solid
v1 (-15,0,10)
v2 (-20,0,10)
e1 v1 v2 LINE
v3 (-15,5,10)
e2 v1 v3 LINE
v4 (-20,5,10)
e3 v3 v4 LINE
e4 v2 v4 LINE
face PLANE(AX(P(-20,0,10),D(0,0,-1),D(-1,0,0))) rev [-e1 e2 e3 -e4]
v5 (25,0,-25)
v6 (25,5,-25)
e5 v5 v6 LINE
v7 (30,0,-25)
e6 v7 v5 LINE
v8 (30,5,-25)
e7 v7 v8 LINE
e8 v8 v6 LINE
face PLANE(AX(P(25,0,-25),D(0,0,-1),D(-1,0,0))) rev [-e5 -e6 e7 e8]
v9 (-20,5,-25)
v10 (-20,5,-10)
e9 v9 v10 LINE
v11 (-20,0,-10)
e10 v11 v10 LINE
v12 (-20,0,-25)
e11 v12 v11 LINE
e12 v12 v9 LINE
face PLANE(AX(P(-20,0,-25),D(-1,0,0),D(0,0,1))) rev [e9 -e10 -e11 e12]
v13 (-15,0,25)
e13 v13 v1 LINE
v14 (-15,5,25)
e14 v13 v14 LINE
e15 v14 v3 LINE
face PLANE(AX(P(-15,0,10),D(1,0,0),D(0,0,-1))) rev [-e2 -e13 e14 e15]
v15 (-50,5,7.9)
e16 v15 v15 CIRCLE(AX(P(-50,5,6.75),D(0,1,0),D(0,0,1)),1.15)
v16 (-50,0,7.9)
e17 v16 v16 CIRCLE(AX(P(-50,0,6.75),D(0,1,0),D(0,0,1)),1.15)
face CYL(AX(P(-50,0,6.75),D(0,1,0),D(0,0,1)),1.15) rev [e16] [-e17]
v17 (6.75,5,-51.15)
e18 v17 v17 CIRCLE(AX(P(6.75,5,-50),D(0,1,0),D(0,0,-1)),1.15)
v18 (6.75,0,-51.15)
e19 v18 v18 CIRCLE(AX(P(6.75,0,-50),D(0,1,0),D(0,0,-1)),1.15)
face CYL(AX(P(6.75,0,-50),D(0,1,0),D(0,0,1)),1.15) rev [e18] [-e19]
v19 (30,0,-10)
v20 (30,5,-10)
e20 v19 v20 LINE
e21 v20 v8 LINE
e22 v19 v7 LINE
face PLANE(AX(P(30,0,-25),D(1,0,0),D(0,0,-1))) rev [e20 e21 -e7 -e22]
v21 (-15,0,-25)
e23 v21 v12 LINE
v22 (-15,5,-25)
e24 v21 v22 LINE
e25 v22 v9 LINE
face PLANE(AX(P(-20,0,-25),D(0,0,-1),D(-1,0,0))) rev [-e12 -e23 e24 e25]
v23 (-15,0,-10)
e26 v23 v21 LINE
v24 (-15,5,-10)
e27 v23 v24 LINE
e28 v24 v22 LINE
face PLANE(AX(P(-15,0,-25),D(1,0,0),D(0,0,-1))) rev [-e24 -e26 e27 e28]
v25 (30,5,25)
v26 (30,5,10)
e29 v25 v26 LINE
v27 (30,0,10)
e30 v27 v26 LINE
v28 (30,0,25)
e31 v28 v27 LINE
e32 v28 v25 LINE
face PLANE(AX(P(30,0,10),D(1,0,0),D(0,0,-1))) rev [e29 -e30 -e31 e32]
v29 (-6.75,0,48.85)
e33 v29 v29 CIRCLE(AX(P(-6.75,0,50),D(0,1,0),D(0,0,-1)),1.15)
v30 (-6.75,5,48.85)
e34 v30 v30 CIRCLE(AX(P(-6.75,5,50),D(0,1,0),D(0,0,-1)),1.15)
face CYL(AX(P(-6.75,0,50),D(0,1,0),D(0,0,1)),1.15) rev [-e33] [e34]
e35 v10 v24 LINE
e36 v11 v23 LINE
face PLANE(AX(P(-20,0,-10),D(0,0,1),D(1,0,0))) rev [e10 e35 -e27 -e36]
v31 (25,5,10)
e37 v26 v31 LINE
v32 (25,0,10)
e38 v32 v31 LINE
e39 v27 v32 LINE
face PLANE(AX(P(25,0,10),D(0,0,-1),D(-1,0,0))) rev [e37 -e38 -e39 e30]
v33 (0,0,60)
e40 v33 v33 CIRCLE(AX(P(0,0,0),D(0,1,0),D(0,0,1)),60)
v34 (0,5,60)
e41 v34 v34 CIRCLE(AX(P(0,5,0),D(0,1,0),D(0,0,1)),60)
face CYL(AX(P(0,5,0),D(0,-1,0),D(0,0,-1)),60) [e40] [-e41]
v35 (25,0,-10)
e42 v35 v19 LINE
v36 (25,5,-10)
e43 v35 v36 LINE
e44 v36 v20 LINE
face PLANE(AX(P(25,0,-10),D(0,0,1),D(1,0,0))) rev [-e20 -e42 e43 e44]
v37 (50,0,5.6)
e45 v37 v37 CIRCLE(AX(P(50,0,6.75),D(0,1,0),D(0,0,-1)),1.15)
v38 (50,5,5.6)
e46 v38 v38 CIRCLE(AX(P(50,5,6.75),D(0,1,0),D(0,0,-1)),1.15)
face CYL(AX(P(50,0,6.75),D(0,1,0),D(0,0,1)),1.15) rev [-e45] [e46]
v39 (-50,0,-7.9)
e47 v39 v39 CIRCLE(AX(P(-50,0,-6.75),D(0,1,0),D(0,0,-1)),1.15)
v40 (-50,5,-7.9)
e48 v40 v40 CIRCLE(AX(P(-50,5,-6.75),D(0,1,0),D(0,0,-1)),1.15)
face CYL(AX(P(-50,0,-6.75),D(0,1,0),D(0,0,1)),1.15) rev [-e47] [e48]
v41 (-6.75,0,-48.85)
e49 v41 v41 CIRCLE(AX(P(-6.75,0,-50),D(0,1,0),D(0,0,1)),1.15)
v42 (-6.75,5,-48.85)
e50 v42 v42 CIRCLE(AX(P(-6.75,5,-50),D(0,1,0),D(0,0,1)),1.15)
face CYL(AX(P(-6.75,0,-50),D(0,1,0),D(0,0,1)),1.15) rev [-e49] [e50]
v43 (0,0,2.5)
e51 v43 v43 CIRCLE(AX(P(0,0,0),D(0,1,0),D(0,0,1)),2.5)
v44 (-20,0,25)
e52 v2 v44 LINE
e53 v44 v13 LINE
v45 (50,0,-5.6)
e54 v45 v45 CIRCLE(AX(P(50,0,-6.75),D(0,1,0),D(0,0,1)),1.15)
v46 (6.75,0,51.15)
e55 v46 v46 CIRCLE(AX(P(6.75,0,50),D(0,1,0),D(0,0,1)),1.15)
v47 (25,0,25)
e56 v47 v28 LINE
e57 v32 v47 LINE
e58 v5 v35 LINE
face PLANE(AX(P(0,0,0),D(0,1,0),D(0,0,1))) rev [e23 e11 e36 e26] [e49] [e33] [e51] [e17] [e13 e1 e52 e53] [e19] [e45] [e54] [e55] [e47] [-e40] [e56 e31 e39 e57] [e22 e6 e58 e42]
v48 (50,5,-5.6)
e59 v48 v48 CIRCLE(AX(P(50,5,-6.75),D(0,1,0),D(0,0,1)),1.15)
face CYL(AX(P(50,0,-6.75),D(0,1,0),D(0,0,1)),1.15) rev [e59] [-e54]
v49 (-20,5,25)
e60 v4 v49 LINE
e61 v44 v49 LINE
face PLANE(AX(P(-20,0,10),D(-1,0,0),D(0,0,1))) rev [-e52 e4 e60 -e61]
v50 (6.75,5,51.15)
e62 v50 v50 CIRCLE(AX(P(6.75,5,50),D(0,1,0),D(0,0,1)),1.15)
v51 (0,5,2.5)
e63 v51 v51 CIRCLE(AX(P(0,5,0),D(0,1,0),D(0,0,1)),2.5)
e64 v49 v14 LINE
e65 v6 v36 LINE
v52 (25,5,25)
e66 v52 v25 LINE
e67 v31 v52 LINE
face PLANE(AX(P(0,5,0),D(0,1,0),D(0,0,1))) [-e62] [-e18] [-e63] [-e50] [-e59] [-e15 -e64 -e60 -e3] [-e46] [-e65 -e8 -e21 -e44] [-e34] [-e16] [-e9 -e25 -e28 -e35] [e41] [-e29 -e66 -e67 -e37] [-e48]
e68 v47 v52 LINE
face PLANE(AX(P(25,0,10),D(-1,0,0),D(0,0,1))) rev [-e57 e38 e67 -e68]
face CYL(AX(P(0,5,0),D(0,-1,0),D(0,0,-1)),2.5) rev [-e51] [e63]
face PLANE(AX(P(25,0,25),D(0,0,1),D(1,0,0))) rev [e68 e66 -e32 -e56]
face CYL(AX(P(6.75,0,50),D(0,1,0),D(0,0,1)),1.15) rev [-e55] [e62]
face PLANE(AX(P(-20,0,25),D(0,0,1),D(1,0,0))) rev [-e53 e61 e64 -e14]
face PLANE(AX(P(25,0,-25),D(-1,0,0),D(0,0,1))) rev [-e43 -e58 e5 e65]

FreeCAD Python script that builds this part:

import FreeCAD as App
import Part
import Sketcher

V = App.Vector
Q = App.Units.Quantity


def add_polygon(sketch, points):
    """Adds a closed chain of lines whose ends are joined by coincident constraints."""
    first, n = sketch.GeometryCount, len(points)
    for a, b in zip(points, points[1:] + points[:1]):
        sketch.addGeometry(Part.LineSegment(App.Vector(*a, 0), App.Vector(*b, 0)), False)
    for i in range(n):
        sketch.addConstraint(Sketcher.Constraint("Coincident", first + i, 2, first + (i + 1) % n, 1))

doc = App.newDocument("Part")
body = doc.addObject("PartDesign::Body", "Body")

sketch1 = body.newObject("Sketcher::SketchObject", "Sketch")
sketch1.AttachmentSupport = (doc.getObject("XZ_Plane"), [""])
sketch1.MapMode = "FlatFace"
sketch1.addGeometry([
    Part.Circle(V(0, 0, 0), V(0, 0, 1), 60),
    Part.Circle(V(0, 0, 0), V(0, 0, 1), 2.5),
], False)
sketch1.addConstraint([
    Sketcher.Constraint("Coincident", 0, 3, -1, 1),
    Sketcher.Constraint("Coincident", 1, 3, -1, 1),
    Sketcher.Constraint("Diameter", 0, Q("120 mm")),
    Sketcher.Constraint("Diameter", 1, Q("5 mm")),
])
pad1 = body.newObject("PartDesign::Pad", "Pad")
pad1.Profile = sketch1
pad1.Length = 5
pad1.Reversed = True

sketch2 = body.newObject("Sketcher::SketchObject", "Sketch001")
sketch2.AttachmentSupport = (doc.getObject("XZ_Plane"), [""])
sketch2.MapMode = "FlatFace"
sketch2.AttachmentOffset = App.Placement(V(0, 0, -5), App.Rotation())
sketch2.addGeometry([
    Part.Circle(V(-6.75, -50, 0), V(0, 0, 1), 1.15),
    Part.Circle(V(50, -6.75, 0), V(0, 0, 1), 1.15),
    Part.Circle(V(6.75, 50, 0), V(0, 0, 1), 1.15),
    Part.Circle(V(-50, 6.75, 0), V(0, 0, 1), 1.15),
    Part.Circle(V(6.75, -50, 0), V(0, 0, 1), 1.15),
    Part.Circle(V(50, 6.75, 0), V(0, 0, 1), 1.15),
    Part.Circle(V(-6.75, 50, 0), V(0, 0, 1), 1.15),
    Part.Circle(V(-50, -6.75, 0), V(0, 0, 1), 1.15),
], False)
sketch2.addConstraint([
    Sketcher.Constraint("Equal", 0, 1),
    Sketcher.Constraint("Equal", 1, 2),
    Sketcher.Constraint("Equal", 2, 3),
    Sketcher.Constraint("Equal", 3, 4),
    Sketcher.Constraint("Equal", 4, 5),
    Sketcher.Constraint("Equal", 5, 6),
    Sketcher.Constraint("Equal", 6, 7),
    Sketcher.Constraint("Symmetric", 0, 3, 2, 3, -1, 1),
    Sketcher.Constraint("Symmetric", 1, 3, 3, 3, -1, 1),
    Sketcher.Constraint("Symmetric", 4, 3, 6, 3, -1, 1),
    Sketcher.Constraint("Symmetric", 5, 3, 7, 3, -1, 1),
    Sketcher.Constraint("Symmetric", 0, 3, 4, 3, -2),
    Sketcher.Constraint("Symmetric", 3, 3, 5, 3, -2),
    Sketcher.Constraint("Diameter", 0, Q("2.3 mm")),
    Sketcher.Constraint("DistanceY", 0, 3, -1, 1, Q("50 mm")),
    Sketcher.Constraint("DistanceX", -1, 1, 1, 3, Q("50 mm")),
    Sketcher.Constraint("DistanceX", 0, 3, 2, 3, Q("13.5 mm")),
    Sketcher.Constraint("DistanceY", 1, 3, 3, 3, Q("13.5 mm")),
])
pocket1 = body.newObject("PartDesign::Pocket", "Pocket")
pocket1.Profile = sketch2
pocket1.Length = 5
pocket1.Reversed = True

sketch3 = body.newObject("Sketcher::SketchObject", "Sketch002")
sketch3.AttachmentSupport = (doc.getObject("XZ_Plane"), [""])
sketch3.MapMode = "FlatFace"
sketch3.AttachmentOffset = App.Placement(V(0, 0, -5), App.Rotation())
add_polygon(sketch3, [(-20, -25), (-20, -10), (-15, -10), (-15, -25)])
add_polygon(sketch3, [(-20, 10), (-20, 25), (-15, 25), (-15, 10)])
sketch3.addConstraint([
    Sketcher.Constraint("Vertical", 0),
    Sketcher.Constraint("Horizontal", 1),
    Sketcher.Constraint("Vertical", 2),
    Sketcher.Constraint("Horizontal", 3),
    Sketcher.Constraint("Vertical", 4),
    Sketcher.Constraint("Horizontal", 5),
    Sketcher.Constraint("Vertical", 6),
    Sketcher.Constraint("Horizontal", 7),
    Sketcher.Constraint("Symmetric", 3, 2, 4, 2, -1),
    Sketcher.Constraint("Symmetric", 1, 2, 6, 2, -1),
    Sketcher.Constraint("DistanceX", 1, 1, 1, 2, Q("5 mm")),
    Sketcher.Constraint("DistanceY", 0, 1, 0, 2, Q("15 mm")),
    Sketcher.Constraint("DistanceX", 0, 2, -1, 1, Q("20 mm")),
    Sketcher.Constraint("DistanceY", 0, 2, -1, 1, Q("10 mm")),
])
pocket2 = body.newObject("PartDesign::Pocket", "Pocket001")
pocket2.Profile = sketch3
pocket2.Length = 5
pocket2.Reversed = True

sketch4 = body.newObject("Sketcher::SketchObject", "Sketch003")
sketch4.AttachmentSupport = (doc.getObject("XZ_Plane"), [""])
sketch4.MapMode = "FlatFace"
sketch4.AttachmentOffset = App.Placement(V(0, 0, -5), App.Rotation())
add_polygon(sketch4, [(25, -25), (25, -10), (30, -10), (30, -25)])
add_polygon(sketch4, [(25, 10), (25, 25), (30, 25), (30, 10)])
sketch4.addConstraint([
    Sketcher.Constraint("Vertical", 0),
    Sketcher.Constraint("Horizontal", 1),
    Sketcher.Constraint("Vertical", 2),
    Sketcher.Constraint("Horizontal", 3),
    Sketcher.Constraint("Vertical", 4),
    Sketcher.Constraint("Horizontal", 5),
    Sketcher.Constraint("Vertical", 6),
    Sketcher.Constraint("Horizontal", 7),
    Sketcher.Constraint("Symmetric", 3, 2, 4, 2, -1),
    Sketcher.Constraint("Symmetric", 1, 2, 6, 2, -1),
    Sketcher.Constraint("DistanceX", 1, 1, 1, 2, Q("5 mm")),
    Sketcher.Constraint("DistanceY", 0, 1, 0, 2, Q("15 mm")),
    Sketcher.Constraint("DistanceX", -1, 1, 0, 2, Q("25 mm")),
    Sketcher.Constraint("DistanceY", 0, 2, -1, 1, Q("10 mm")),
])
pocket3 = body.newObject("PartDesign::Pocket", "Pocket002")
pocket3.Profile = sketch4
pocket3.Length = 5
pocket3.Reversed = True

doc.recompute()
